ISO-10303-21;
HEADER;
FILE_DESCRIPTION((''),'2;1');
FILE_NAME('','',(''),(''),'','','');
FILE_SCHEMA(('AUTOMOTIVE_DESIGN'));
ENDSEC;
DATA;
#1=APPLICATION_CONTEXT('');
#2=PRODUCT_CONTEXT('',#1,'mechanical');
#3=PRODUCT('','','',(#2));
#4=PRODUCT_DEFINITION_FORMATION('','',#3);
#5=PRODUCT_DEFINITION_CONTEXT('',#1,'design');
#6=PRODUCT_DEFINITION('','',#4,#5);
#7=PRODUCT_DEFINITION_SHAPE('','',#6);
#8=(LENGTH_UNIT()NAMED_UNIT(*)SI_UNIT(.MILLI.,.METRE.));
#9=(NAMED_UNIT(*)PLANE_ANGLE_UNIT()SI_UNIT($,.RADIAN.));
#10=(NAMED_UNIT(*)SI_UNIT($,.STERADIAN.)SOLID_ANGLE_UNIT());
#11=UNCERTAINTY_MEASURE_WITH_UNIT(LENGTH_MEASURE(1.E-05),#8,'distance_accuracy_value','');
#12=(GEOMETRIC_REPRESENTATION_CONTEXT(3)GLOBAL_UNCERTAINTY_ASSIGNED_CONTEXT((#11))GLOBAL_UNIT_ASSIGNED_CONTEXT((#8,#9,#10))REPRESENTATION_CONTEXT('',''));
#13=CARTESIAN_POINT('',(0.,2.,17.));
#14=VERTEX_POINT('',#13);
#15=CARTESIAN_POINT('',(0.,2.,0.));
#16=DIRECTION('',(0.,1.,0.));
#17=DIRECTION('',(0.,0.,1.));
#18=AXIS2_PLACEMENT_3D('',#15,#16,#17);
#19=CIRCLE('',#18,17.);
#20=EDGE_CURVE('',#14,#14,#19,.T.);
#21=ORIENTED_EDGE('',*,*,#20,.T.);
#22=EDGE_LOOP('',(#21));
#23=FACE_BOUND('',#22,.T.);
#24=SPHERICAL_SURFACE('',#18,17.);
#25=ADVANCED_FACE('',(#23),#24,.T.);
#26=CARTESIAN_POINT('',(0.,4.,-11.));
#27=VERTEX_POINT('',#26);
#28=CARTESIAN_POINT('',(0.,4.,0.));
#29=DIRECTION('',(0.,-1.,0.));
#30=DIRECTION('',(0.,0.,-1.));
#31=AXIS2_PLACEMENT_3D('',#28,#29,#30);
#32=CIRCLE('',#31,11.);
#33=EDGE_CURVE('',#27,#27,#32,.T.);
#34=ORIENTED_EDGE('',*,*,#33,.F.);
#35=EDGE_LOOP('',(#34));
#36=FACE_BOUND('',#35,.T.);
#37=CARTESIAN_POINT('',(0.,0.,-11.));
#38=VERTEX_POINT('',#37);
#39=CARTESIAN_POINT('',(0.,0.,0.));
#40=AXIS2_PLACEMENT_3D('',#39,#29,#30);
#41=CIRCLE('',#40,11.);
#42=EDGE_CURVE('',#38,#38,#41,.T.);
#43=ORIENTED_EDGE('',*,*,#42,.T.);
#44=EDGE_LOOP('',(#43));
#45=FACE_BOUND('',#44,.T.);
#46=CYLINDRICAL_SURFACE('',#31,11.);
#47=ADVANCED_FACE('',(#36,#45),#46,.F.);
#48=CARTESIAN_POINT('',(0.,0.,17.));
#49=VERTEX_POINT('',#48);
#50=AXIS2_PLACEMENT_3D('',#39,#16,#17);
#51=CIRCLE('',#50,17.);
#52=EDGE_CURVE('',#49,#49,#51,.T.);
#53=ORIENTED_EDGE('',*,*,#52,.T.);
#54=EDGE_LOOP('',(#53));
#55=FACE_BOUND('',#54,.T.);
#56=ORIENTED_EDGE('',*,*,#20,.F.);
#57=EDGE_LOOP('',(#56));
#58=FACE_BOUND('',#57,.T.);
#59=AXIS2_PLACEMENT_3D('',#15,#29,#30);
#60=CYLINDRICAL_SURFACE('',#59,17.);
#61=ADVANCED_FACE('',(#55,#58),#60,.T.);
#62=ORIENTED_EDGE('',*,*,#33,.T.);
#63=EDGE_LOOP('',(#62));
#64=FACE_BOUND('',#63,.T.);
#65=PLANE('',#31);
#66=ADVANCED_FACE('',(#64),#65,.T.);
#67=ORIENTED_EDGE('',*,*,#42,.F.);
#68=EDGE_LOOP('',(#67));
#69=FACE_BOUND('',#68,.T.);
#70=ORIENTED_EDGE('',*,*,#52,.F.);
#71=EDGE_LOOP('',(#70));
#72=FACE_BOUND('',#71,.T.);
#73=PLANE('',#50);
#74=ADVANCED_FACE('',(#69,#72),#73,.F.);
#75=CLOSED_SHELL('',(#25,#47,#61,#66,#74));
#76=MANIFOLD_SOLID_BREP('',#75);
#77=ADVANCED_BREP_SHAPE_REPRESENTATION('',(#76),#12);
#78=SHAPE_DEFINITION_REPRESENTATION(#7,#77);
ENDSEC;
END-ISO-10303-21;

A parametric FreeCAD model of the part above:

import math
import FreeCAD as App
import Part
import Sketcher

V = App.Vector

doc = App.newDocument("Part")
body = doc.addObject("PartDesign::Body", "Body")

# Sketch on XZ plane
sketch1 = body.newObject("Sketcher::SketchObject", "Sketch")
sketch1.AttachmentSupport = (doc.getObject("XZ_Plane"), [""])
sketch1.MapMode = "FlatFace"
sketch1.addGeometry(Part.Circle(V(0, 0, 0), V(0, 0, 1), 17), False)
sketch1.addConstraint(Sketcher.Constraint("Coincident", 0, 3, -1, 1))
sketch1.addConstraint(Sketcher.Constraint("Diameter", 0, 34.0))
pad1 = body.newObject("PartDesign::Pad", "Pad")
pad1.Profile = sketch1
pad1.Length = 2
pad1.Reversed = True

# Sketch on XZ plane
sketch2 = body.newObject("Sketcher::SketchObject", "Sketch001")
sketch2.AttachmentSupport = (doc.getObject("XZ_Plane"), [""])
sketch2.MapMode = "FlatFace"
sketch2.AttachmentOffset = App.Placement(V(0, 0, -2), App.Rotation())
sketch2.addGeometry(Part.LineSegment(V(-17, 0, 0), V(17, 0, 0)), False)
sketch2.addGeometry(Part.ArcOfCircle(Part.Circle(V(0, 0, 0), V(0, 0, 1), 17), math.radians(180), math.radians(360)), False)
sketch2.addConstraint(Sketcher.Constraint("Coincident", 0, 1, 1, 1))
sketch2.addConstraint(Sketcher.Constraint("Coincident", 1, 2, 0, 2))
sketch2.addConstraint(Sketcher.Constraint("Horizontal", 0))
sketch2.addConstraint(Sketcher.Constraint("Coincident", 1, 3, -1, 1))
sketch2.addConstraint(Sketcher.Constraint("PointOnObject", 0, 1, -1))
sketch2.addConstraint(Sketcher.Constraint("Radius", 1, 17.0))
revolution = body.newObject("PartDesign::Revolution", "Revolution")
revolution.Profile = sketch2
revolution.ReferenceAxis = (sketch2, ["H_Axis"])
revolution.Angle = 180

# Sketch on XZ plane
sketch3 = body.newObject("Sketcher::SketchObject", "Sketch002")
sketch3.AttachmentSupport = (doc.getObject("XZ_Plane"), [""])
sketch3.MapMode = "FlatFace"
sketch3.addGeometry(Part.Circle(V(0, 0, 0), V(0, 0, 1), 11), False)
sketch3.addConstraint(Sketcher.Constraint("Coincident", 0, 3, -1, 1))
sketch3.addConstraint(Sketcher.Constraint("Diameter", 0, 22.0))
pocket1 = body.newObject("PartDesign::Pocket", "Pocket")
pocket1.Profile = sketch3
pocket1.Length = 4

doc.recompute()
